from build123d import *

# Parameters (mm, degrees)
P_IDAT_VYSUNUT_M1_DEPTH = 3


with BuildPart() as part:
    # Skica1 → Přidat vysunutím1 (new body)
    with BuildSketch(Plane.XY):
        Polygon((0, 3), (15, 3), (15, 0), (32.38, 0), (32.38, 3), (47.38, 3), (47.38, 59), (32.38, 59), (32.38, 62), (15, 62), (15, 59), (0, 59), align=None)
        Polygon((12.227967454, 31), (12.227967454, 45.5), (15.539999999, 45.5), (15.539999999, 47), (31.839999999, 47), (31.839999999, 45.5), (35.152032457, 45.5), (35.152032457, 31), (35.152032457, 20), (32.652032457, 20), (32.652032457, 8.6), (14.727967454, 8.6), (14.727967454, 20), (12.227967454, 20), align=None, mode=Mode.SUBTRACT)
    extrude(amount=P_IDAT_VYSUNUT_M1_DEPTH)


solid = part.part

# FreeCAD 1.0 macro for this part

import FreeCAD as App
import Part
import Sketcher
from FreeCAD import Vector


def add_polygon(sketch, points):
    """Adds a closed chain of lines whose ends are joined by coincident constraints."""
    first, n = sketch.GeometryCount, len(points)
    for a, b in zip(points, points[1:] + points[:1]):
        sketch.addGeometry(Part.LineSegment(App.Vector(*a, 0), App.Vector(*b, 0)), False)
    for i in range(n):
        sketch.addConstraint(Sketcher.Constraint("Coincident", first + i, 2, first + (i + 1) % n, 1))

doc = App.newDocument("Part")
body = doc.addObject("PartDesign::Body", "Body")

# Sketch on XY plane
sketch1 = body.newObject("Sketcher::SketchObject", "Sketch")
sketch1.AttachmentSupport = (doc.getObject("XY_Plane"), [""])
sketch1.MapMode = "FlatFace"
add_polygon(sketch1, [(0, 3), (15, 3), (15, 0), (32.4, 0), (32.4, 3), (47.4, 3), (47.4, 59), (32.4, 59), (32.4, 62), (15, 62), (15, 59), (0, 59)])  # lines 0-11
add_polygon(sketch1, [(12.2, 20), (12.2, 45.5), (15.5, 45.5), (15.5, 47), (31.8, 47), (31.8, 45.5), (35.2, 45.5), (35.2, 20), (32.7, 20), (32.7, 8.6), (14.7, 8.6), (14.7, 20)])  # lines 12-23
sketch1.addConstraint([
    Sketcher.Constraint("Horizontal", 0),
    Sketcher.Constraint("Vertical", 1),
    Sketcher.Constraint("Horizontal", 2),
    Sketcher.Constraint("Vertical", 3),
    Sketcher.Constraint("Horizontal", 4),
    Sketcher.Constraint("Vertical", 5),
    Sketcher.Constraint("Horizontal", 6),
    Sketcher.Constraint("Vertical", 7),
    Sketcher.Constraint("Horizontal", 8),
    Sketcher.Constraint("Vertical", 9),
    Sketcher.Constraint("Horizontal", 10),
    Sketcher.Constraint("Vertical", 11),
    Sketcher.Constraint("Vertical", 12),
    Sketcher.Constraint("Horizontal", 13),
    Sketcher.Constraint("Vertical", 14),
    Sketcher.Constraint("Horizontal", 15),
    Sketcher.Constraint("Vertical", 16),
    Sketcher.Constraint("Horizontal", 17),
    Sketcher.Constraint("Vertical", 18),
    Sketcher.Constraint("Horizontal", 19),
    Sketcher.Constraint("Vertical", 20),
    Sketcher.Constraint("Horizontal", 21),
    Sketcher.Constraint("Vertical", 22),
    Sketcher.Constraint("Horizontal", 23),
    Sketcher.Constraint("PointOnObject", 1, 2, -1),
    Sketcher.Constraint("PointOnObject", 10, 2, -2),
    Sketcher.Constraint("Horizontal", 0, 2, 3, 2),
    Sketcher.Constraint("Horizontal", 6, 2, 9, 2),
    Sketcher.Constraint("Horizontal", 13, 2, 16, 2),
    Sketcher.Constraint("Horizontal", 19, 2, 22, 2),
    Sketcher.Constraint("Vertical", 3, 2, 6, 2),
    Sketcher.Constraint("Vertical", 1, 2, 8, 2),
    Sketcher.Constraint("Equal", 0, 4),
    Sketcher.Constraint("Equal", 13, 17),
    Sketcher.Constraint("Equal", 19, 23),
    Sketcher.Constraint("Equal", 3, 7),
    Sketcher.Constraint("DistanceX", 0, 1, 0, 2, 15.0),
    Sketcher.Constraint("DistanceY", 1, 2, 1, 1, 3.0),
    Sketcher.Constraint("DistanceY", 5, 1, 5, 2, 56.0),
    Sketcher.Constraint("DistanceX", 15, 1, 15, 2, 16.3),
    Sketcher.Constraint("DistanceX", 19, 2, 19, 1, 2.5),
    Sketcher.Constraint("DistanceY", 12, 1, 12, 2, 25.5),
    Sketcher.Constraint("DistanceY", 14, 1, 14, 2, 1.5),
    Sketcher.Constraint("DistanceY", 20, 2, 20, 1, 11.4),
    Sketcher.Constraint("DistanceY", -1, 1, 14, 2, 47.0),
    Sketcher.Constraint("DistanceX", 2, 1, 2, 2, 17.38),
    Sketcher.Constraint("DistanceX", -1, 1, 13, 2, 15.54),
    Sketcher.Constraint("DistanceX", 13, 1, 13, 2, 3.312033),
])
pad1 = body.newObject("PartDesign::Pad", "Pad")
pad1.Profile = sketch1
pad1.Length = 3

doc.recompute()
